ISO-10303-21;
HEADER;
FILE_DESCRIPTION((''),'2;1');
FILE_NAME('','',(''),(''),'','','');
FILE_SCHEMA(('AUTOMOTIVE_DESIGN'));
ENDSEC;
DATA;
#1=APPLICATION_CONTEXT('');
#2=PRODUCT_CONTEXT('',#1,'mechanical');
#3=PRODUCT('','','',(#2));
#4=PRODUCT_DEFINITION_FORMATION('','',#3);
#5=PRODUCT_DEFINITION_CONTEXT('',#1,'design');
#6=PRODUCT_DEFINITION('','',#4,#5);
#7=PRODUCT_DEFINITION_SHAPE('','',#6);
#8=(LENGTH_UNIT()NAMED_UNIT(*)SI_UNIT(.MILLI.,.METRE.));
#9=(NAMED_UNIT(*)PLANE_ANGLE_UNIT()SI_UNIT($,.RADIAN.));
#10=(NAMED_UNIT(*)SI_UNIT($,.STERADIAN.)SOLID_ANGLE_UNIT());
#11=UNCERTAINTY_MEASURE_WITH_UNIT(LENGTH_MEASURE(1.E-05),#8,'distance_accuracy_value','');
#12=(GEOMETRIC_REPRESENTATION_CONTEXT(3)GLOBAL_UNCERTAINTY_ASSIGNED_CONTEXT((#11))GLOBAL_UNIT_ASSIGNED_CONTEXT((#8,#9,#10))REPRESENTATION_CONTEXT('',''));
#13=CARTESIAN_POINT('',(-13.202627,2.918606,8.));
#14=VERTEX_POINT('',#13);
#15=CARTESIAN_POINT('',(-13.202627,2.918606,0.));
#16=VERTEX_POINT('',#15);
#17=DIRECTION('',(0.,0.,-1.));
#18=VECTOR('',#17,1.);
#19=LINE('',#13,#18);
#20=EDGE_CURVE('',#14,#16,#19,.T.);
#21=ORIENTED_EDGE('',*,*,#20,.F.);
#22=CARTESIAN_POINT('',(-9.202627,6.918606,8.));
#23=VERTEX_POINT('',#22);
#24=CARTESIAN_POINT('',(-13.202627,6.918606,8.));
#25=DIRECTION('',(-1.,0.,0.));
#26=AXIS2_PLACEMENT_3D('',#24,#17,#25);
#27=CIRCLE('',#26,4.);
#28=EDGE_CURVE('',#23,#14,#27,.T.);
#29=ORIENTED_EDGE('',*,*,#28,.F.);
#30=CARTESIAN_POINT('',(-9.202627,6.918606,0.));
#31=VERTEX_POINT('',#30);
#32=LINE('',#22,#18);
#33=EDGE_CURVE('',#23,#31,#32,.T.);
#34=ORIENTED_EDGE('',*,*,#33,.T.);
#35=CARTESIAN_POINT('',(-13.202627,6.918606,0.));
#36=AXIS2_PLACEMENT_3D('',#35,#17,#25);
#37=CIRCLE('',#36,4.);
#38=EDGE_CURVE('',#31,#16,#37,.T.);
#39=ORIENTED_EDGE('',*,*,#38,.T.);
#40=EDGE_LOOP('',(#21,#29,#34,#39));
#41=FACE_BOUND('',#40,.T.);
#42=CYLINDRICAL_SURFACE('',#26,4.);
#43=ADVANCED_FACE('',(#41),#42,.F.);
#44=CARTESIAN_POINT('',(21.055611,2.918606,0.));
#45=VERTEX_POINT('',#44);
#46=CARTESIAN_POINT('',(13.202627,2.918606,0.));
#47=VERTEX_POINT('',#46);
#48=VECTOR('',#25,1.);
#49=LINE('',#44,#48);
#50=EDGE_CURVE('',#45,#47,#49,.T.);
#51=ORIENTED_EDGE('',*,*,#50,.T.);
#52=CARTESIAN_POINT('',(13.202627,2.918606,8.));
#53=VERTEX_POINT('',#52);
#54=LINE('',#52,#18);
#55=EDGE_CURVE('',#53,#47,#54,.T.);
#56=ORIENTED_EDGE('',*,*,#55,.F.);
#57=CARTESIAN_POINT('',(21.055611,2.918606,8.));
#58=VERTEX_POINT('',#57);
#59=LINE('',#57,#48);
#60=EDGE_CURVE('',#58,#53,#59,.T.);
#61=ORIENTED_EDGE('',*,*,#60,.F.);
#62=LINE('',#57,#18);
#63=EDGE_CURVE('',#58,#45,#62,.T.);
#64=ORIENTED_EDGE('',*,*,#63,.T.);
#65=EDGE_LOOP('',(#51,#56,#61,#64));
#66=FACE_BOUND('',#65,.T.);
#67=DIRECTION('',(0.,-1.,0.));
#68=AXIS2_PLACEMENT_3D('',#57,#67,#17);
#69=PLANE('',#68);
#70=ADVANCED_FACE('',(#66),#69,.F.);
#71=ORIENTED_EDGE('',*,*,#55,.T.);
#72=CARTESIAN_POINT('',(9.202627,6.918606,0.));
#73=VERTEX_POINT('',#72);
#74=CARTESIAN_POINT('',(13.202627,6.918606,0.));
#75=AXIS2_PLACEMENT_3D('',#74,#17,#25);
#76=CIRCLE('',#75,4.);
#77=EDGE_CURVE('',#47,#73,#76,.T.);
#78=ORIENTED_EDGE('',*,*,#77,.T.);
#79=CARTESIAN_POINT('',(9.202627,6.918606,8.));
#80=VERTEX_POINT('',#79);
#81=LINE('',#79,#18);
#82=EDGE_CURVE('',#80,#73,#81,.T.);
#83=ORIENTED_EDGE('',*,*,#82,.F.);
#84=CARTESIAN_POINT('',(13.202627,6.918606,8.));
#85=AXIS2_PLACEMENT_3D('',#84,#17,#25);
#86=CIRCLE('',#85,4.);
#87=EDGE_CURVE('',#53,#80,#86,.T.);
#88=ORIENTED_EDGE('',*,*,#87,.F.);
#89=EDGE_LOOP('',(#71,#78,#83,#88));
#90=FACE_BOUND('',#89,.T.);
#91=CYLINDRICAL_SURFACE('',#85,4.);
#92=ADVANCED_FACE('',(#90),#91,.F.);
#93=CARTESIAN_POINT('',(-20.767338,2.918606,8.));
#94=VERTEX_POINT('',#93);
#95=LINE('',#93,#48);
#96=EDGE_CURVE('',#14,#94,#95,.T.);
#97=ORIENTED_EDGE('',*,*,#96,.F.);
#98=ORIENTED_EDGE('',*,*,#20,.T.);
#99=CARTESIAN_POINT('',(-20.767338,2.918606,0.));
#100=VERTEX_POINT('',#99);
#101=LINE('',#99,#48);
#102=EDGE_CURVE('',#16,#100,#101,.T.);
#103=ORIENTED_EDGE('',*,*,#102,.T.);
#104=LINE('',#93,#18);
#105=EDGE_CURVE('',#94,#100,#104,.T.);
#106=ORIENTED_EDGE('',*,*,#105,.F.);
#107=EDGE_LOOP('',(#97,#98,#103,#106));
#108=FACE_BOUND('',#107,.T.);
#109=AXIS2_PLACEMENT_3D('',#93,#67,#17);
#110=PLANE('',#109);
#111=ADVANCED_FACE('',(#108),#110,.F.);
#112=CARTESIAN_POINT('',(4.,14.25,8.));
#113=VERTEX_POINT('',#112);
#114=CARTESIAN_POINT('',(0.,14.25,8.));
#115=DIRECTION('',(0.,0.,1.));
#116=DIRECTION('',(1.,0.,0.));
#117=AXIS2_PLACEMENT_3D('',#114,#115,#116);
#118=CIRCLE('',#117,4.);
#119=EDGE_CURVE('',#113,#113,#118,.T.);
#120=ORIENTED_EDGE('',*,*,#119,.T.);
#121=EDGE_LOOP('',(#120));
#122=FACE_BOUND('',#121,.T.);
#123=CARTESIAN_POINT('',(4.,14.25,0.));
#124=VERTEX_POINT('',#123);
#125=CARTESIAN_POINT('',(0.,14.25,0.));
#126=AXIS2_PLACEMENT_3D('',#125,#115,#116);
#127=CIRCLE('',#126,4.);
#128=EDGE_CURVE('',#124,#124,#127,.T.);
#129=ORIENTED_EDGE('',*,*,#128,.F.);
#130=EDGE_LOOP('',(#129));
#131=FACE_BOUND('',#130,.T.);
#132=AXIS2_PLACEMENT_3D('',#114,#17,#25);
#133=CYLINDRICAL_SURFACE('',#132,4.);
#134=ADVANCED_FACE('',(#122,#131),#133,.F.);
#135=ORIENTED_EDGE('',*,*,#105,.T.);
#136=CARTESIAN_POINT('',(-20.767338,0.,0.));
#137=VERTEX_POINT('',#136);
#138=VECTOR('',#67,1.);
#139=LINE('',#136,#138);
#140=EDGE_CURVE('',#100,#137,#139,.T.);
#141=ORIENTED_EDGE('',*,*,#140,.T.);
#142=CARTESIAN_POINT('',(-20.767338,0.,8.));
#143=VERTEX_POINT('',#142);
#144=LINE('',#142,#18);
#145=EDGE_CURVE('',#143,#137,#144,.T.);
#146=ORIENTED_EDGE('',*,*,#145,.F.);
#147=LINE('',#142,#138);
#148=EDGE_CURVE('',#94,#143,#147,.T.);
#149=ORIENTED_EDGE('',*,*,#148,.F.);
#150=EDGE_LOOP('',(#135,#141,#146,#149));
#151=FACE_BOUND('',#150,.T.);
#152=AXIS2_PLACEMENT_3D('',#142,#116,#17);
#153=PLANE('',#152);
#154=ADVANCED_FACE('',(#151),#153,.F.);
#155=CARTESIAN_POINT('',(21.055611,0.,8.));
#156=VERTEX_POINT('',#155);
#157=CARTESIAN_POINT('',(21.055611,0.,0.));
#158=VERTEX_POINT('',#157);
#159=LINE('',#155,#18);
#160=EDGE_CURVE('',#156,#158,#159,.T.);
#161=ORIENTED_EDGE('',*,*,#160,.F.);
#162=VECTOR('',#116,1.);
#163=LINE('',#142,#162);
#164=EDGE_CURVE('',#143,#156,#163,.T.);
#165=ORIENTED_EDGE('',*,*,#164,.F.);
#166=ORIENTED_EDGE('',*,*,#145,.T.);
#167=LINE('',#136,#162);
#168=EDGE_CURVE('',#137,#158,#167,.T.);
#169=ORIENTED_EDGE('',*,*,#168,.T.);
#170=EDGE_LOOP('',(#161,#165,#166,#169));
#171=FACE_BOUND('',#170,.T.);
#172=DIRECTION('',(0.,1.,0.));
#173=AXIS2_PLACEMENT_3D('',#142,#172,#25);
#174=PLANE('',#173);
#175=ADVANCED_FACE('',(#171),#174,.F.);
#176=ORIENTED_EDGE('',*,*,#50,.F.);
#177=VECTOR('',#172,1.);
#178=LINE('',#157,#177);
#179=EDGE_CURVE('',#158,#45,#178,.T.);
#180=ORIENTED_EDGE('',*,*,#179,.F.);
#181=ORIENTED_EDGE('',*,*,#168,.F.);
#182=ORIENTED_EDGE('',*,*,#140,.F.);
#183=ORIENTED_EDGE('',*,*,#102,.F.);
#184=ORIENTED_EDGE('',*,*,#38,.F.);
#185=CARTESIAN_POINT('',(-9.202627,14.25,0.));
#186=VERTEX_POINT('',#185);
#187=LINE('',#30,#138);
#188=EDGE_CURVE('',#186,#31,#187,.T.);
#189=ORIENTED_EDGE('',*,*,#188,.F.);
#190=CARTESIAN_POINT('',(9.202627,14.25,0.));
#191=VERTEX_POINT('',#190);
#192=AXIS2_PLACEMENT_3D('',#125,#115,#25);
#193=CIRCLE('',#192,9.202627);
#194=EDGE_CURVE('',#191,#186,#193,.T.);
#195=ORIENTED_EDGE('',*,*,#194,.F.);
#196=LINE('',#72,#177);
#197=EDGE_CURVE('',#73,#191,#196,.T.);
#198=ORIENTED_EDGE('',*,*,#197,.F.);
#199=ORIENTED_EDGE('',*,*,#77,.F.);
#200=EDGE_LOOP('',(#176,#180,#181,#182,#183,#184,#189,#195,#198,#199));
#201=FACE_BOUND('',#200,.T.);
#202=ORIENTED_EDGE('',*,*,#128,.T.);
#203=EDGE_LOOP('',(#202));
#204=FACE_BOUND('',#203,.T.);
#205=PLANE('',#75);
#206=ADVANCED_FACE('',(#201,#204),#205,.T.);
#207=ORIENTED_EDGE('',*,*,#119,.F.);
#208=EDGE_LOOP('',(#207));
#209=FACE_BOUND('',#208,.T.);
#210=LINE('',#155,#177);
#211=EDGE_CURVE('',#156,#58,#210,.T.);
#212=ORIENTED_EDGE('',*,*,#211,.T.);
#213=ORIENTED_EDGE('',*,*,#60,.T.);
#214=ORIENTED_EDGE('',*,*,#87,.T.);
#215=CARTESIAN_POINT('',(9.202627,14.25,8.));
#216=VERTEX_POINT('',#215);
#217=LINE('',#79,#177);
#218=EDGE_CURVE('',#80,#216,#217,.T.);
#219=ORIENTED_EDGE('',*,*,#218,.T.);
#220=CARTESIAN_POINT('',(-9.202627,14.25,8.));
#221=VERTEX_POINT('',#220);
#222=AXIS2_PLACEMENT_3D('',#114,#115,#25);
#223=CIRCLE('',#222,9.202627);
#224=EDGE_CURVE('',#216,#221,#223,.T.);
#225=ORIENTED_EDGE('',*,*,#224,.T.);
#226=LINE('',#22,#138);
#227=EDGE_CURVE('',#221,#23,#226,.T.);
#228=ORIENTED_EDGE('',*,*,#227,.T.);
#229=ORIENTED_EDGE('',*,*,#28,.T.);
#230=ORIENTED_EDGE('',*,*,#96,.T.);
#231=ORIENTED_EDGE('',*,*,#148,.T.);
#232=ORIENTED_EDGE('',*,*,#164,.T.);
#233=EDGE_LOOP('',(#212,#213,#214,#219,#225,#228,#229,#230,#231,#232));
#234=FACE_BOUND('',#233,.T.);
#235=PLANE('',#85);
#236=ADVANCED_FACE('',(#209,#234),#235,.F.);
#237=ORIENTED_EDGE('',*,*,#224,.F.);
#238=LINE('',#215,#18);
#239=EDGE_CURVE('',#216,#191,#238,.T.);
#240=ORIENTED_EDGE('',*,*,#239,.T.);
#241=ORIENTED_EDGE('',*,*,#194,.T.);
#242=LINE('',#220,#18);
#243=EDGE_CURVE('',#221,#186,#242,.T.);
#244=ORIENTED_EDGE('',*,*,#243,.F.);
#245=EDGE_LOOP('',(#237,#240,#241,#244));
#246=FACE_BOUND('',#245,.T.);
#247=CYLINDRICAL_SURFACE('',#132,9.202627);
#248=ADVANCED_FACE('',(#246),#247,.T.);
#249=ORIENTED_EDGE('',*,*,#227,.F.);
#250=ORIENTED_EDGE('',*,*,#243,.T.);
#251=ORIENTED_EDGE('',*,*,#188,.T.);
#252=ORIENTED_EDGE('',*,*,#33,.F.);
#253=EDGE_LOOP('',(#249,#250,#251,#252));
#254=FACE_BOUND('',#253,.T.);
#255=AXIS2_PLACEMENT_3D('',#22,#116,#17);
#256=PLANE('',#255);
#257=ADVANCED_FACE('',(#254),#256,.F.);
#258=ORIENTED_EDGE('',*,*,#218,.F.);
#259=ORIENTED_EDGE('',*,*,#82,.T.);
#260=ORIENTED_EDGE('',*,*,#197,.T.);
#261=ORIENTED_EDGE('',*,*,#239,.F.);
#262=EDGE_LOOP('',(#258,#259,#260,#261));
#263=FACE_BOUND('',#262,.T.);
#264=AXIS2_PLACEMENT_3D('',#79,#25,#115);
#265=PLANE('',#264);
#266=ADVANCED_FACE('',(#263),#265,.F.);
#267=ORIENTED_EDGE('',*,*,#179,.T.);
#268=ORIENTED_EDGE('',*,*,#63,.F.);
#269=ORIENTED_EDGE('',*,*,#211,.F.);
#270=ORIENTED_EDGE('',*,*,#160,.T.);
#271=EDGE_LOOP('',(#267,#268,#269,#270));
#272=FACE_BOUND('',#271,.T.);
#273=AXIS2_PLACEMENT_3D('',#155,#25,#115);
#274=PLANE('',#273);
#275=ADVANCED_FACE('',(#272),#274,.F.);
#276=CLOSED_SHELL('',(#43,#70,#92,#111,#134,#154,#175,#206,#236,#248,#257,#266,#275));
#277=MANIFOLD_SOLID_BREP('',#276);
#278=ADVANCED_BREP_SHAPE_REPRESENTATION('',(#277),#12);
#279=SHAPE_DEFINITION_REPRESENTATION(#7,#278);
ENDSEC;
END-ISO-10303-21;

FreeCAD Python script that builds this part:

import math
import FreeCAD as App
import Part
import Sketcher
Q = App.Units.Quantity

doc = App.newDocument("Part")
body = doc.addObject("PartDesign::Body", "Body")

# Sketch on XY plane
sketch1 = body.newObject("Sketcher::SketchObject", "Sketch")
sketch1.AttachmentSupport = (doc.getObject("XY_Plane"), [""])
sketch1.MapMode = "FlatFace"
sketch1.addGeometry([
    Part.LineSegment(App.Vector(-20.767338, 2.918606, 0), App.Vector(-20.767338, 0, 0)),  # 0
    Part.LineSegment(App.Vector(-20.767338, 0, 0), App.Vector(21.055611, 0, 0)),  # 1
    Part.LineSegment(App.Vector(21.055611, 0, 0), App.Vector(21.055611, 2.918606, 0)),  # 2
    Part.LineSegment(App.Vector(21.055611, 2.918606, 0), App.Vector(13.202627, 2.918606, 0)),  # 3
    Part.ArcOfCircle(Part.Circle(App.Vector(13.202627, 6.918606, 0), App.Vector(0, 0, 1), 4), math.radians(180), math.radians(270)),  # 4
    Part.LineSegment(App.Vector(9.202627, 6.918606, 0), App.Vector(9.202627, 14.25, 0)),  # 5
    Part.ArcOfCircle(Part.Circle(App.Vector(0, 14.25, 0), App.Vector(0, 0, 1), 9.202627), math.radians(0), math.radians(180)),  # 6
    Part.LineSegment(App.Vector(-9.202627, 14.25, 0), App.Vector(-9.202627, 6.918606, 0)),  # 7
    Part.ArcOfCircle(Part.Circle(App.Vector(-13.202627, 6.918606, 0), App.Vector(0, 0, 1), 4), math.radians(-90), math.radians(0)),  # 8
    Part.LineSegment(App.Vector(-13.202627, 2.918606, 0), App.Vector(-20.767338, 2.918606, 0)),  # 9
    Part.Circle(App.Vector(0, 14.25, 0), App.Vector(0, 0, 1), 4),  # 10
], False)
sketch1.addConstraint([
    Sketcher.Constraint("Coincident", 0, 2, 1, 1),
    Sketcher.Constraint("Coincident", 1, 2, 2, 1),
    Sketcher.Constraint("Coincident", 2, 2, 3, 1),
    Sketcher.Constraint("Tangent", 3, 2, 4, 2),
    Sketcher.Constraint("Tangent", 4, 1, 5, 1),
    Sketcher.Constraint("Tangent", 5, 2, 6, 1),
    Sketcher.Constraint("Tangent", 6, 2, 7, 1),
    Sketcher.Constraint("Tangent", 7, 2, 8, 2),
    Sketcher.Constraint("Tangent", 8, 1, 9, 1),
    Sketcher.Constraint("Coincident", 9, 2, 0, 1),
    Sketcher.Constraint("Vertical", 0),
    Sketcher.Constraint("Horizontal", 1),
    Sketcher.Constraint("Vertical", 2),
    Sketcher.Constraint("Horizontal", 3),
    Sketcher.Constraint("Vertical", 5),
    Sketcher.Constraint("Vertical", 7),
    Sketcher.Constraint("Horizontal", 9),
    Sketcher.Constraint("Coincident", 10, 3, 6, 3),
    Sketcher.Constraint("Equal", 4, 8),
    Sketcher.Constraint("Equal", 8, 10),
    Sketcher.Constraint("Symmetric", 4, 3, 8, 3, -2),
    Sketcher.Constraint("PointOnObject", 0, 2, -1),
    Sketcher.Constraint("Diameter", 10, Q("8 mm")),
    Sketcher.Constraint("DistanceY", -1, 1, 6, 3, Q("14.25 mm")),
    Sketcher.Constraint("Radius", 6, Q("9.202627 mm")),
    Sketcher.Constraint("DistanceX", 1, 1, 1, 2, Q("41.822949 mm")),
    Sketcher.Constraint("DistanceX", 9, 2, 9, 1, Q("7.564711 mm")),
    Sketcher.Constraint("DistanceY", 0, 2, 0, 1, Q("2.918606 mm")),
])
pad1 = body.newObject("PartDesign::Pad", "Pad")
pad1.Profile = sketch1
pad1.Length = 8

doc.recompute()
